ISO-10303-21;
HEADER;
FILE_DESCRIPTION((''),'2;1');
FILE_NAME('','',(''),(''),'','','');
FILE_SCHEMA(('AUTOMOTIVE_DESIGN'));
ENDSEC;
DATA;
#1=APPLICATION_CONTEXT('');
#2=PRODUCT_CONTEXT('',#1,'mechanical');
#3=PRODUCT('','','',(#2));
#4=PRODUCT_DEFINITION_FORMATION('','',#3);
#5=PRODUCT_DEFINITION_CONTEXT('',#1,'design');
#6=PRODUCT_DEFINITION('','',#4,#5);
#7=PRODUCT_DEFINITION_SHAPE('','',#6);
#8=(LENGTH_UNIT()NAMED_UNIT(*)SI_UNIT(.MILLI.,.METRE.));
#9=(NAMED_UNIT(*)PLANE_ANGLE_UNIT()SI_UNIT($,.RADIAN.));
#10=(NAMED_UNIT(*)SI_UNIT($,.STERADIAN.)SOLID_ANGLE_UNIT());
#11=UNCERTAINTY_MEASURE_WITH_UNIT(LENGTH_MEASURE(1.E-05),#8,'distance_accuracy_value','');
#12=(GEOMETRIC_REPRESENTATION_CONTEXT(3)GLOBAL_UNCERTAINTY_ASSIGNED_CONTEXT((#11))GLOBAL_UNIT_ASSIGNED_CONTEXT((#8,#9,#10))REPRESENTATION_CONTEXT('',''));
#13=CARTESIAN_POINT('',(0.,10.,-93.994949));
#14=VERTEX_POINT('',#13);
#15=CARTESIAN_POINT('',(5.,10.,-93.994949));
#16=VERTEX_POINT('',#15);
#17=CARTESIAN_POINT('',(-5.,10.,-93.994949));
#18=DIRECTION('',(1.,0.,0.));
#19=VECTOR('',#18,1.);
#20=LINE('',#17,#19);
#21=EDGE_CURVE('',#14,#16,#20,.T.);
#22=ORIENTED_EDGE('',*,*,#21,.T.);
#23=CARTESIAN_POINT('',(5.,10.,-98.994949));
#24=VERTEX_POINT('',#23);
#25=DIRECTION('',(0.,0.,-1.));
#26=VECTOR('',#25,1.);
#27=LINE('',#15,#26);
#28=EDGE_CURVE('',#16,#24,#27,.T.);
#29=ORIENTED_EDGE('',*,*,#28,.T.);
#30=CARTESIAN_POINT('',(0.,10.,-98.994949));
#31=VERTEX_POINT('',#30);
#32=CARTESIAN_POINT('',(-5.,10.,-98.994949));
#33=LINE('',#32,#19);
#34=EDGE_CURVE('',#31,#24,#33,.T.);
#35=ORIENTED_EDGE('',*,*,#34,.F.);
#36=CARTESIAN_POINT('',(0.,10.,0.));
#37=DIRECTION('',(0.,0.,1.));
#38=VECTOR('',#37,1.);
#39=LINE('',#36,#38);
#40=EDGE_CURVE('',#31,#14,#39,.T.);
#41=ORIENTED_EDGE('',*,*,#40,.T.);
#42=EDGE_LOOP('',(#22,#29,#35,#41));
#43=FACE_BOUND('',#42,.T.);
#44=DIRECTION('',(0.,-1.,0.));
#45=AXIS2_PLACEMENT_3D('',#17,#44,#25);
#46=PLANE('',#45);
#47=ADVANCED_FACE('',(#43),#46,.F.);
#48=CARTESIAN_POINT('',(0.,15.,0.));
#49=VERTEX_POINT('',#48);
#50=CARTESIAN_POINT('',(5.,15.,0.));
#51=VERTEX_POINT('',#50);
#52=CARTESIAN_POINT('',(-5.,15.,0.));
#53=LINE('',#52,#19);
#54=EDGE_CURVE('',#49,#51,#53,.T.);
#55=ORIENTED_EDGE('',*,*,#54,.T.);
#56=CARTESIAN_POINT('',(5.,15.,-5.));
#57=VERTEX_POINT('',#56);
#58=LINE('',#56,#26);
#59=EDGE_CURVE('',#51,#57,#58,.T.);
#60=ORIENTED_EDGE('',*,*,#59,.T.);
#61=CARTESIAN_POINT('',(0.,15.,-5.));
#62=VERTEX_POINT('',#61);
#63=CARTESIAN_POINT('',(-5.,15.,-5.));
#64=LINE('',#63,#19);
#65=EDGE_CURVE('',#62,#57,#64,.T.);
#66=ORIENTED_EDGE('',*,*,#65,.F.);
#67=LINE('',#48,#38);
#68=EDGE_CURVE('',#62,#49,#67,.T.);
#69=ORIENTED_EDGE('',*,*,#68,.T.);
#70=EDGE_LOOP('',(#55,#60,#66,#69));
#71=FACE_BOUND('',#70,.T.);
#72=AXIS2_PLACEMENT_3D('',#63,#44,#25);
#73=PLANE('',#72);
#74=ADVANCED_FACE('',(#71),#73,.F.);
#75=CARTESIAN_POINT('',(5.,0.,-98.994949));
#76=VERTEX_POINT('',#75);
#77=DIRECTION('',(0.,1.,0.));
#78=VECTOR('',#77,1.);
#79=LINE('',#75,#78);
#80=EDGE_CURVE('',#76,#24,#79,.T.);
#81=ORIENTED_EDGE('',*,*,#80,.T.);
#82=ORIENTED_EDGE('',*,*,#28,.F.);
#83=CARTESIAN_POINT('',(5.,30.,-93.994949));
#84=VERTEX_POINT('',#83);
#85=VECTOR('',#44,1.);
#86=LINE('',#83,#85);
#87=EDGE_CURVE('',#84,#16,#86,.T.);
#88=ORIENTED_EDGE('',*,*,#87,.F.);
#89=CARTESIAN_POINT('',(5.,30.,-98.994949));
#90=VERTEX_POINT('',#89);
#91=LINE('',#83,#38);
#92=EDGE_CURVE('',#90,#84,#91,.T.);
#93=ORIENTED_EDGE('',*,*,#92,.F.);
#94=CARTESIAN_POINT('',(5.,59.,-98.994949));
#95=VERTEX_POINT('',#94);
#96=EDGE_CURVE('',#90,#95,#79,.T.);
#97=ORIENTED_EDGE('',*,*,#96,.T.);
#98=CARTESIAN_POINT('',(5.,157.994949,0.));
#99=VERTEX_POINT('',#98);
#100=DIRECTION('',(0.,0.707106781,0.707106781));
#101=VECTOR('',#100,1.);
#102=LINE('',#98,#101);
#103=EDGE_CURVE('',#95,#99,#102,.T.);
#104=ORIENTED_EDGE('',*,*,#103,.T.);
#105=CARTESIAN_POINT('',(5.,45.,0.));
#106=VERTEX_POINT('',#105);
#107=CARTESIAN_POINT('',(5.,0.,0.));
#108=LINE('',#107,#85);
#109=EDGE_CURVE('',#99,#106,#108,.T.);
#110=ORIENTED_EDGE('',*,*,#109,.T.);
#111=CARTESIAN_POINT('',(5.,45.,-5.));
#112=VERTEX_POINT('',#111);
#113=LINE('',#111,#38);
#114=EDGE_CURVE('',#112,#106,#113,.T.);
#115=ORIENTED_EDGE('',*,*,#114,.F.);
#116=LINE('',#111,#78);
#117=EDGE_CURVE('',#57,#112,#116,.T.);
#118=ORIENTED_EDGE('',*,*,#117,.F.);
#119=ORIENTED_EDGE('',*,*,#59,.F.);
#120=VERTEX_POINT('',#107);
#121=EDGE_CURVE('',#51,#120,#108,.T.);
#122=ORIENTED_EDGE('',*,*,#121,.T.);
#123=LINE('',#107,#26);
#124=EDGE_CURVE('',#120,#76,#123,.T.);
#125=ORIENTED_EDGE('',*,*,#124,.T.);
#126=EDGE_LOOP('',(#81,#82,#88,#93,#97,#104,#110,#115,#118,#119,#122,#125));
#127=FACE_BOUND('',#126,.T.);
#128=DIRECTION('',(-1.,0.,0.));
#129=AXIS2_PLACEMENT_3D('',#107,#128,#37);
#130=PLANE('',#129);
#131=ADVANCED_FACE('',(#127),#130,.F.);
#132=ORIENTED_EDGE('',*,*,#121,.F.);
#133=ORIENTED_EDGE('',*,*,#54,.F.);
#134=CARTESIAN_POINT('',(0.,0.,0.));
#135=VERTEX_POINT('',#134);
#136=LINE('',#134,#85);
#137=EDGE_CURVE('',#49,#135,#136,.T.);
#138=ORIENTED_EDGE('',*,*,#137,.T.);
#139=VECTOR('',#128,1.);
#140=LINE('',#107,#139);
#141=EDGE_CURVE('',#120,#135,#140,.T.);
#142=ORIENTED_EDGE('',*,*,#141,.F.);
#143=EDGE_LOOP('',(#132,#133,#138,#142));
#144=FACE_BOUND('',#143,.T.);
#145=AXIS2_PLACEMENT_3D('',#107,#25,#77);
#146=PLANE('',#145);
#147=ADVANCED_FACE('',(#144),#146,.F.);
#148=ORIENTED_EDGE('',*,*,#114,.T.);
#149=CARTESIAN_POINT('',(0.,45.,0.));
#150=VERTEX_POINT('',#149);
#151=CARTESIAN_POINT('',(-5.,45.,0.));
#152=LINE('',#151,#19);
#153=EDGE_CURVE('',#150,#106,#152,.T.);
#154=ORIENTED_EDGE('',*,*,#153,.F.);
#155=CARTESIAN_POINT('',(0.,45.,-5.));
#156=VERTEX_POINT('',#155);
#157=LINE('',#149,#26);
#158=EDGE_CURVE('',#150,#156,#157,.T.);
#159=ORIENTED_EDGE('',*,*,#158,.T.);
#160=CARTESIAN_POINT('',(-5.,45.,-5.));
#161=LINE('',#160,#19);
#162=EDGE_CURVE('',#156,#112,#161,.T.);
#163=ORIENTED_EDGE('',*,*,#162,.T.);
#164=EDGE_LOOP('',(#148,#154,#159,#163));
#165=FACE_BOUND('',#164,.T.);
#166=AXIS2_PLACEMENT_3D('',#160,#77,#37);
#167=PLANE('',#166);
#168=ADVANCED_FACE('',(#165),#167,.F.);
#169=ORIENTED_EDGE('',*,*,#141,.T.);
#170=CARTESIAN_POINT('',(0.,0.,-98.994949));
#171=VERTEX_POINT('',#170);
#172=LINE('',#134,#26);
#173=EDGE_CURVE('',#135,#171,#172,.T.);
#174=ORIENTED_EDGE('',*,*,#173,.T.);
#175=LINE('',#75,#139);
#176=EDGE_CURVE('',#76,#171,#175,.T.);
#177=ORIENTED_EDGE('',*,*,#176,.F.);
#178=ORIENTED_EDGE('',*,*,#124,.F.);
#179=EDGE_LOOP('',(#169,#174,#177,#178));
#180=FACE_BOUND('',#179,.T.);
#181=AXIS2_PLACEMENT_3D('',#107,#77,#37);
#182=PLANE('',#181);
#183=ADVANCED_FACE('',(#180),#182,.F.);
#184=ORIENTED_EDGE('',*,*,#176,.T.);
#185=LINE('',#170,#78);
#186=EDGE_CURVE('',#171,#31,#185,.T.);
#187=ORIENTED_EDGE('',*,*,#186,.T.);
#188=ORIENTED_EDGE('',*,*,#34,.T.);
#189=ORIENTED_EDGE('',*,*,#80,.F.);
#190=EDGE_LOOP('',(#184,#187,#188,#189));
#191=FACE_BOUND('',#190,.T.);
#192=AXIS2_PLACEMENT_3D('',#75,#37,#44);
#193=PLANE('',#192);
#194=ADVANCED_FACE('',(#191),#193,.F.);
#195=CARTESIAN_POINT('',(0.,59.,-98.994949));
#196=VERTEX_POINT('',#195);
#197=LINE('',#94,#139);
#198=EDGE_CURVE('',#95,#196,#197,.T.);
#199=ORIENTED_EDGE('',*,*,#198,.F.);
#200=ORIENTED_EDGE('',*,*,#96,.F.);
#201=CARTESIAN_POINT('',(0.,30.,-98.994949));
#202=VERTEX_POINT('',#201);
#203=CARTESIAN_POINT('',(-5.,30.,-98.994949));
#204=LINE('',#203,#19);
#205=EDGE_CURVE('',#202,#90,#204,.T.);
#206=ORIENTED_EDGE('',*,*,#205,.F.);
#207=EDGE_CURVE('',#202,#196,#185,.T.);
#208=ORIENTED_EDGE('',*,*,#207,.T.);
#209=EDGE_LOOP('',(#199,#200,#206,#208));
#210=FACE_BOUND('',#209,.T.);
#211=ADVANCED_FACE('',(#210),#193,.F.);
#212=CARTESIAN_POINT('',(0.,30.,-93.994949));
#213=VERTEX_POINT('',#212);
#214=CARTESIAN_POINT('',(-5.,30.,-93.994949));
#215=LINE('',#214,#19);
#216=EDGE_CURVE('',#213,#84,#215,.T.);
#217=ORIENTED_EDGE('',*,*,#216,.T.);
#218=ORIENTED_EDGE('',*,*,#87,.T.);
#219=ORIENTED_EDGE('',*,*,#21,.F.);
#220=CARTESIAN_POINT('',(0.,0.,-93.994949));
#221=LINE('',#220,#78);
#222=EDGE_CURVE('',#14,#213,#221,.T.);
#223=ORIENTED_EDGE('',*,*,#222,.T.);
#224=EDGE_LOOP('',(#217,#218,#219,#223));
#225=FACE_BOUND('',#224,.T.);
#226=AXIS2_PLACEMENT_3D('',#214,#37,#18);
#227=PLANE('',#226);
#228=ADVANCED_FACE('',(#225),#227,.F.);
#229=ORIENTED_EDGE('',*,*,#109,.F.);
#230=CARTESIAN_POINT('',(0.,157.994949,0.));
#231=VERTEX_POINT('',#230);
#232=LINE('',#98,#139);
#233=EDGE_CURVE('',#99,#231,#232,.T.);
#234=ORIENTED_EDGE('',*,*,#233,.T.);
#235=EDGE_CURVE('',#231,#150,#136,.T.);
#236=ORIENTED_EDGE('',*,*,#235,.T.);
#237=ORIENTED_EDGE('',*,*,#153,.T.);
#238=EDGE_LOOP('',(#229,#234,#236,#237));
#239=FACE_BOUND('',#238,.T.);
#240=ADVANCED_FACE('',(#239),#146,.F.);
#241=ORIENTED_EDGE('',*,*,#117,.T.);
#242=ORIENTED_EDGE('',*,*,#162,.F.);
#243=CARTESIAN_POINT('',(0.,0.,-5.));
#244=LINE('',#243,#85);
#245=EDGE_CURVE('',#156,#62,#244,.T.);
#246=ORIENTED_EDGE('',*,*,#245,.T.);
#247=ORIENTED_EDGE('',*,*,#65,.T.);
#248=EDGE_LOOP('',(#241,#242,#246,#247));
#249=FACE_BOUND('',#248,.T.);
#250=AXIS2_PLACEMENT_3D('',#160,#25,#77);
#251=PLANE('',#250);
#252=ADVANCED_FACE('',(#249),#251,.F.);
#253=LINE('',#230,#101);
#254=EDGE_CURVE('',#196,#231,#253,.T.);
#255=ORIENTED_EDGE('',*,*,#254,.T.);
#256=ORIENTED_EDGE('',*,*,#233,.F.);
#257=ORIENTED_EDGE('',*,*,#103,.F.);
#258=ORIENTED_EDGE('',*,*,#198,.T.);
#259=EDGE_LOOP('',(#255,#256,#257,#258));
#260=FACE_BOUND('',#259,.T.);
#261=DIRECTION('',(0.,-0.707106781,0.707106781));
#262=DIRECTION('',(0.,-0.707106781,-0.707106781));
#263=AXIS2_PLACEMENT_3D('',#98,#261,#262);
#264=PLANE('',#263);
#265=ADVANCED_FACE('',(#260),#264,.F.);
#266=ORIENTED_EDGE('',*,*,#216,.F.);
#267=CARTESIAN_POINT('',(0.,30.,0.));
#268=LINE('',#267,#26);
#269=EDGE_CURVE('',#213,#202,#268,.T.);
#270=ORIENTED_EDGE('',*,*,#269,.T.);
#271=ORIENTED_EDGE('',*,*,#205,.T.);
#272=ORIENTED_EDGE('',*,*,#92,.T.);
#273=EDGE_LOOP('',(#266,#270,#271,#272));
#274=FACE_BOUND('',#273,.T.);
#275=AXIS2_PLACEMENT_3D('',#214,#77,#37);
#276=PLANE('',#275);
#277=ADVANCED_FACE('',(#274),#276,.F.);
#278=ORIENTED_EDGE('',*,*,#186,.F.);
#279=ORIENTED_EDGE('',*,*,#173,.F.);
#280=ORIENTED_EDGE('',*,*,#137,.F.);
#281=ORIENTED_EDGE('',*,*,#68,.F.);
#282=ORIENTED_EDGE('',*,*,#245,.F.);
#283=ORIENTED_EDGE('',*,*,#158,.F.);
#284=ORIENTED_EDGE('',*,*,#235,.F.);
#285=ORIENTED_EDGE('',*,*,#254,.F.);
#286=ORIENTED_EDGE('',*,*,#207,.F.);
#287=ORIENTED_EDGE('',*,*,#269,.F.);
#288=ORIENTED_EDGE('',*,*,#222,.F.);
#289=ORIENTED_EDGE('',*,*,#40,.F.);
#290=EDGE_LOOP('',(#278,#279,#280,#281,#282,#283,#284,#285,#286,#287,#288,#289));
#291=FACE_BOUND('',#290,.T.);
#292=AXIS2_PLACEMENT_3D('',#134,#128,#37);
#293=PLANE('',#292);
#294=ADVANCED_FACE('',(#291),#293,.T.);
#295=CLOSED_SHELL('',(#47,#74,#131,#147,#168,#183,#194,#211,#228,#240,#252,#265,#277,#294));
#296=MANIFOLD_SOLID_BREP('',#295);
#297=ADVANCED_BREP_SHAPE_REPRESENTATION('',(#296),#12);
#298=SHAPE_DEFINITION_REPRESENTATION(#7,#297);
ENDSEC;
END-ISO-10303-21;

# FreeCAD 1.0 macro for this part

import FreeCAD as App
import Part
import Sketcher
from FreeCAD import Vector
Q = App.Units.Quantity

doc = App.newDocument("Part")
body = doc.addObject("PartDesign::Body", "Body")

# Sketch on YZ plane
sketch1 = body.newObject("Sketcher::SketchObject", "Sketch")
sketch1.AttachmentSupport = (doc.getObject("YZ_Plane"), [""])
sketch1.MapMode = "FlatFace"
sketch1.addGeometry([
    Part.LineSegment(Vector(0, 0, 0), Vector(0, -99, 0)),
    Part.LineSegment(Vector(0, -99, 0), Vector(59, -99, 0)),
    Part.LineSegment(Vector(59, -99, 0), Vector(158, 0, 0)),
    Part.LineSegment(Vector(158, 0, 0), Vector(0, 0, 0)),
], False)
sketch1.addConstraint([
    Sketcher.Constraint("Coincident", 0, 2, 1, 1),
    Sketcher.Constraint("Coincident", 1, 2, 2, 1),
    Sketcher.Constraint("Coincident", 2, 2, 3, 1),
    Sketcher.Constraint("Coincident", 3, 2, 0, 1),
    Sketcher.Constraint("Vertical", 0),
    Sketcher.Constraint("Horizontal", 1),
    Sketcher.Constraint("Horizontal", 3),
    Sketcher.Constraint("Coincident", 3, 2, -1, 1),
    Sketcher.Constraint("DistanceX", 1, 1, 1, 2, 59.0),
    Sketcher.Constraint("Angle", 2, Q("45 deg")),
    Sketcher.Constraint("Distance", 2, 140.0),
])
pad1 = body.newObject("PartDesign::Pad", "Pad")
pad1.Profile = sketch1
pad1.Length = 5

# Sketch on YZ plane
sketch2 = body.newObject("Sketcher::SketchObject", "Sketch001")
sketch2.AttachmentSupport = (doc.getObject("YZ_Plane"), [""])
sketch2.MapMode = "FlatFace"
sketch2.AttachmentOffset = App.Placement(Vector(0, 0, 5), App.Rotation())
sketch2.addGeometry([
    Part.LineSegment(Vector(45, 0, 0), Vector(15, 0, 0)),  # 0
    Part.LineSegment(Vector(15, 0, 0), Vector(15, -5, 0)),  # 1
    Part.LineSegment(Vector(15, -5, 0), Vector(45, -5, 0)),  # 2
    Part.LineSegment(Vector(45, -5, 0), Vector(45, 0, 0)),  # 3
    Part.LineSegment(Vector(30, -94, 0), Vector(10, -94, 0)),  # 4
    Part.LineSegment(Vector(10, -94, 0), Vector(10, -99, 0)),  # 5
    Part.LineSegment(Vector(10, -99, 0), Vector(30, -99, 0)),  # 6
    Part.LineSegment(Vector(30, -99, 0), Vector(30, -94, 0)),  # 7
], False)
sketch2.addConstraint([
    Sketcher.Constraint("Coincident", 0, 2, 1, 1),
    Sketcher.Constraint("Coincident", 1, 2, 2, 1),
    Sketcher.Constraint("Coincident", 2, 2, 3, 1),
    Sketcher.Constraint("Coincident", 3, 2, 0, 1),
    Sketcher.Constraint("Coincident", 4, 2, 5, 1),
    Sketcher.Constraint("Coincident", 5, 2, 6, 1),
    Sketcher.Constraint("Coincident", 6, 2, 7, 1),
    Sketcher.Constraint("Coincident", 7, 2, 4, 1),
    Sketcher.Constraint("Horizontal", 0),
    Sketcher.Constraint("Vertical", 1),
    Sketcher.Constraint("Horizontal", 2),
    Sketcher.Constraint("Vertical", 3),
    Sketcher.Constraint("Horizontal", 4),
    Sketcher.Constraint("Vertical", 5),
    Sketcher.Constraint("Horizontal", 6),
    Sketcher.Constraint("Vertical", 7),
    Sketcher.Constraint("PointOnObject", 0, 2, -1),
    Sketcher.Constraint("Equal", 3, 5),
    Sketcher.Constraint("DistanceX", 0, 2, 0, 1, 30.0),
    Sketcher.Constraint("DistanceX", 4, 2, 4, 1, 20.0),
    Sketcher.Constraint("DistanceY", 1, 2, 1, 1, 5.0),
    Sketcher.Constraint("DistanceX", -1, 1, 0, 2, 15.0),
    Sketcher.Constraint("DistanceX", -1, 1, 4, 2, 10.0),
    Sketcher.Constraint("DistanceY", 4, 2, -1, 1, 93.994949),
])
pocket1 = body.newObject("PartDesign::Pocket", "Pocket")
pocket1.Profile = sketch2
pocket1.Length = 10

doc.recompute()
